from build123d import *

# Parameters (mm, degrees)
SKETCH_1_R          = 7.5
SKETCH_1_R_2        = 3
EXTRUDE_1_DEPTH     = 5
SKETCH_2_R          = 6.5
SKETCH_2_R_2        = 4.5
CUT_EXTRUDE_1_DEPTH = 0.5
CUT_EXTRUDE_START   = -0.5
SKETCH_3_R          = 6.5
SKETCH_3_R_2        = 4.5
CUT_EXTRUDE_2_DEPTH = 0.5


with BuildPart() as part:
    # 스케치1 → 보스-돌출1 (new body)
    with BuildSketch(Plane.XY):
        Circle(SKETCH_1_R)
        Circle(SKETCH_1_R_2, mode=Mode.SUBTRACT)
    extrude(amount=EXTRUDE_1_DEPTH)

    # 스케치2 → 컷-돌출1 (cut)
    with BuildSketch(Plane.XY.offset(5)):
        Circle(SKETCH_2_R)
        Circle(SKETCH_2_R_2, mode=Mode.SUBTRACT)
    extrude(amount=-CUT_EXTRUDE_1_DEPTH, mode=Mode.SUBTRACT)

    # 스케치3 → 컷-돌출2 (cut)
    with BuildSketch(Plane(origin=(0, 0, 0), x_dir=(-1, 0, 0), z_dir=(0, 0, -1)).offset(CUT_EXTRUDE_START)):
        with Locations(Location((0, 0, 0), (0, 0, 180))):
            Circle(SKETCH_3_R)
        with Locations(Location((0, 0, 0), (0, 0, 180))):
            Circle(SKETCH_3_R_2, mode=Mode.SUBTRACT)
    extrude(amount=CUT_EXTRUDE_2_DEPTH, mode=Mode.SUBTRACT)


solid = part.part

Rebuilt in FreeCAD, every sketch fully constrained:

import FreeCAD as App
import Part
import Sketcher
Q = App.Units.Quantity

doc = App.newDocument("Part")
params = doc.addObject("Spreadsheet::Sheet", "Params")
for row, (alias, value) in enumerate([
    ("sketch1_diameter", "15 mm"),
    ("sketch1_diameter2", "6 mm"),
    ("pad1_length", "5 mm"),
    ("sketch2_diameter", "13 mm"),
    ("sketch2_diameter2", "9 mm"),
    ("pocket1_length", "0.5 mm"),
    ("sketch3_diameter", "13 mm"),
    ("sketch3_diameter2", "9 mm"),
    ("pocket2_length", "0.5 mm"),
], start=1):
    params.set(f"A{row}", alias)
    params.set(f"B{row}", "=" + value)
    params.setAlias(f"B{row}", alias)

body = doc.addObject("PartDesign::Body", "Body")

sketch1 = body.newObject("Sketcher::SketchObject", "Sketch")
sketch1.AttachmentSupport = (doc.getObject("XY_Plane"), [""])
sketch1.MapMode = "FlatFace"
sketch1.addGeometry(Part.Circle(App.Vector(0, 0, 0), App.Vector(0, 0, 1), 7.5), False)
sketch1.addGeometry(Part.Circle(App.Vector(0, 0, 0), App.Vector(0, 0, 1), 3), False)
sketch1.addConstraint(Sketcher.Constraint("Coincident", 0, 3, -1, 1))
sketch1.addConstraint(Sketcher.Constraint("Coincident", 1, 3, -1, 1))
sketch1.addConstraint(Sketcher.Constraint("Diameter", 0, Q("15 mm")))
sketch1.addConstraint(Sketcher.Constraint("Diameter", 1, Q("6 mm")))
sketch1.setExpression("Constraints[2]", "Params.sketch1_diameter")
sketch1.setExpression("Constraints[3]", "Params.sketch1_diameter2")
pad1 = body.newObject("PartDesign::Pad", "Pad")
pad1.Profile = sketch1
pad1.setExpression("Length", "Params.pad1_length")

sketch2 = body.newObject("Sketcher::SketchObject", "Sketch001")
sketch2.AttachmentSupport = (doc.getObject("XY_Plane"), [""])
sketch2.MapMode = "FlatFace"
sketch2.AttachmentOffset = App.Placement(App.Vector(0, 0, 5), App.Rotation())
sketch2.addGeometry(Part.Circle(App.Vector(0, 0, 0), App.Vector(0, 0, 1), 6.5), False)
sketch2.addGeometry(Part.Circle(App.Vector(0, 0, 0), App.Vector(0, 0, 1), 4.5), False)
sketch2.addConstraint(Sketcher.Constraint("Coincident", 0, 3, -1, 1))
sketch2.addConstraint(Sketcher.Constraint("Coincident", 1, 3, -1, 1))
sketch2.addConstraint(Sketcher.Constraint("Diameter", 0, Q("13 mm")))
sketch2.addConstraint(Sketcher.Constraint("Diameter", 1, Q("9 mm")))
sketch2.setExpression("Constraints[2]", "Params.sketch2_diameter")
sketch2.setExpression("Constraints[3]", "Params.sketch2_diameter2")
pocket1 = body.newObject("PartDesign::Pocket", "Pocket")
pocket1.Profile = sketch2
pocket1.setExpression("Length", "Params.pocket1_length")

sketch3 = body.newObject("Sketcher::SketchObject", "Sketch002")
sketch3.AttachmentSupport = (doc.getObject("XY_Plane"), [""])
sketch3.MapMode = "FlatFace"
sketch3.AttachmentOffset = App.Placement(App.Vector(0, 0, 0.5), App.Rotation())
sketch3.addGeometry(Part.Circle(App.Vector(0, 0, 0), App.Vector(0, 0, 1), 6.5), False)
sketch3.addGeometry(Part.Circle(App.Vector(0, 0, 0), App.Vector(0, 0, 1), 4.5), False)
sketch3.addConstraint(Sketcher.Constraint("Coincident", 0, 3, -1, 1))
sketch3.addConstraint(Sketcher.Constraint("Coincident", 1, 3, -1, 1))
sketch3.addConstraint(Sketcher.Constraint("Diameter", 0, Q("13 mm")))
sketch3.addConstraint(Sketcher.Constraint("Diameter", 1, Q("9 mm")))
sketch3.setExpression("Constraints[2]", "Params.sketch3_diameter")
sketch3.setExpression("Constraints[3]", "Params.sketch3_diameter2")
pocket2 = body.newObject("PartDesign::Pocket", "Pocket001")
pocket2.Profile = sketch3
pocket2.setExpression("Length", "Params.pocket2_length")

doc.recompute()
